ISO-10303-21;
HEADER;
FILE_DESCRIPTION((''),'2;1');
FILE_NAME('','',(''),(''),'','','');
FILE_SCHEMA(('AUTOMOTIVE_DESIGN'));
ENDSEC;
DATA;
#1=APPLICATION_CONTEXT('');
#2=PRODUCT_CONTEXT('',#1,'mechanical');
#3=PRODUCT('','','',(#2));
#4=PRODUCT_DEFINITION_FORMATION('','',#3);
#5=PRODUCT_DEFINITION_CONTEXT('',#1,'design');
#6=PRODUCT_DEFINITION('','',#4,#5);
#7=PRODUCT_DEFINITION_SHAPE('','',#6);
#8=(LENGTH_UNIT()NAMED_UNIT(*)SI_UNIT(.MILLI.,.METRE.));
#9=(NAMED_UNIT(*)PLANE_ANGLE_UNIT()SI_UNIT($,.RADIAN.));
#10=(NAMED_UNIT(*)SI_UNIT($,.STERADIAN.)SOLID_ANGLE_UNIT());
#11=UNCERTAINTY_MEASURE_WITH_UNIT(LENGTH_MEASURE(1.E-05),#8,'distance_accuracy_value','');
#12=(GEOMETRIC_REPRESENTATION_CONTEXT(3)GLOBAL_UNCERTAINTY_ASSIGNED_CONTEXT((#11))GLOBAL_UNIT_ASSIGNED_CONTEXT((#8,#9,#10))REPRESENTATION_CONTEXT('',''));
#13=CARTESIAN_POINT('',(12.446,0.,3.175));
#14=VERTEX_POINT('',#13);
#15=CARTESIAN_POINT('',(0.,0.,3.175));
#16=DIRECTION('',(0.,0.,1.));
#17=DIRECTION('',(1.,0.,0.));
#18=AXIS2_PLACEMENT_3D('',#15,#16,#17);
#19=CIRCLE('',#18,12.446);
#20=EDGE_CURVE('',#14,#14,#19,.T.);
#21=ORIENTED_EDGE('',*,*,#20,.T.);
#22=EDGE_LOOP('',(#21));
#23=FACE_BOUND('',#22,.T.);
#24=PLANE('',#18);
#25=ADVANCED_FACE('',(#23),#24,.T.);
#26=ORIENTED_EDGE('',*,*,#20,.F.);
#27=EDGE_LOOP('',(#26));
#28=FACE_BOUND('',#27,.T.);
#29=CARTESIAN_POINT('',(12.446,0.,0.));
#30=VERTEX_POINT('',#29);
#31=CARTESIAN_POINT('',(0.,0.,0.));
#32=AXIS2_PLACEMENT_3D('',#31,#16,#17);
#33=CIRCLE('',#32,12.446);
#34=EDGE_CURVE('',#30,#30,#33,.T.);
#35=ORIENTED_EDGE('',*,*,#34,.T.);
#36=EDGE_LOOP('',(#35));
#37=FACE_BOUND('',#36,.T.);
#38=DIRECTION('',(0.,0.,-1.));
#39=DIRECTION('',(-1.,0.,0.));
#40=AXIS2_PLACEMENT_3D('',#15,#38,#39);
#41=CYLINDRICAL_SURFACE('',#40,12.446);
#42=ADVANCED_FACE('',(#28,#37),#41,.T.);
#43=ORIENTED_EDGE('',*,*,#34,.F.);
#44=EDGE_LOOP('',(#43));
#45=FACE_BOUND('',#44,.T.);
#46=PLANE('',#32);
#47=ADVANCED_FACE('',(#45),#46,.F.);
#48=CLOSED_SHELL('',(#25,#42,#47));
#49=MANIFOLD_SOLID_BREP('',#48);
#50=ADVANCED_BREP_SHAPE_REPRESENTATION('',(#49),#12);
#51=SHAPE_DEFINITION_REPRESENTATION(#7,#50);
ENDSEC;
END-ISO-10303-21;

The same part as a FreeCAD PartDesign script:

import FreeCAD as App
import Part
import Sketcher

V = App.Vector
Q = App.Units.Quantity

doc = App.newDocument("Part")
body = doc.addObject("PartDesign::Body", "Body")

sketch1 = body.newObject("Sketcher::SketchObject", "Sketch")
sketch1.AttachmentSupport = (doc.getObject("XY_Plane"), [""])
sketch1.MapMode = "FlatFace"
sketch1.addGeometry(Part.Circle(V(0, 0, 0), V(0, 0, 1), 12.446), False)
sketch1.addConstraint(Sketcher.Constraint("Coincident", 0, 3, -1, 1))
sketch1.addConstraint(Sketcher.Constraint("Diameter", 0, Q("0.98 in")))
pad1 = body.newObject("PartDesign::Pad", "Pad")
pad1.Profile = sketch1
pad1.Length = Q("0.125 in")

doc.recompute()
